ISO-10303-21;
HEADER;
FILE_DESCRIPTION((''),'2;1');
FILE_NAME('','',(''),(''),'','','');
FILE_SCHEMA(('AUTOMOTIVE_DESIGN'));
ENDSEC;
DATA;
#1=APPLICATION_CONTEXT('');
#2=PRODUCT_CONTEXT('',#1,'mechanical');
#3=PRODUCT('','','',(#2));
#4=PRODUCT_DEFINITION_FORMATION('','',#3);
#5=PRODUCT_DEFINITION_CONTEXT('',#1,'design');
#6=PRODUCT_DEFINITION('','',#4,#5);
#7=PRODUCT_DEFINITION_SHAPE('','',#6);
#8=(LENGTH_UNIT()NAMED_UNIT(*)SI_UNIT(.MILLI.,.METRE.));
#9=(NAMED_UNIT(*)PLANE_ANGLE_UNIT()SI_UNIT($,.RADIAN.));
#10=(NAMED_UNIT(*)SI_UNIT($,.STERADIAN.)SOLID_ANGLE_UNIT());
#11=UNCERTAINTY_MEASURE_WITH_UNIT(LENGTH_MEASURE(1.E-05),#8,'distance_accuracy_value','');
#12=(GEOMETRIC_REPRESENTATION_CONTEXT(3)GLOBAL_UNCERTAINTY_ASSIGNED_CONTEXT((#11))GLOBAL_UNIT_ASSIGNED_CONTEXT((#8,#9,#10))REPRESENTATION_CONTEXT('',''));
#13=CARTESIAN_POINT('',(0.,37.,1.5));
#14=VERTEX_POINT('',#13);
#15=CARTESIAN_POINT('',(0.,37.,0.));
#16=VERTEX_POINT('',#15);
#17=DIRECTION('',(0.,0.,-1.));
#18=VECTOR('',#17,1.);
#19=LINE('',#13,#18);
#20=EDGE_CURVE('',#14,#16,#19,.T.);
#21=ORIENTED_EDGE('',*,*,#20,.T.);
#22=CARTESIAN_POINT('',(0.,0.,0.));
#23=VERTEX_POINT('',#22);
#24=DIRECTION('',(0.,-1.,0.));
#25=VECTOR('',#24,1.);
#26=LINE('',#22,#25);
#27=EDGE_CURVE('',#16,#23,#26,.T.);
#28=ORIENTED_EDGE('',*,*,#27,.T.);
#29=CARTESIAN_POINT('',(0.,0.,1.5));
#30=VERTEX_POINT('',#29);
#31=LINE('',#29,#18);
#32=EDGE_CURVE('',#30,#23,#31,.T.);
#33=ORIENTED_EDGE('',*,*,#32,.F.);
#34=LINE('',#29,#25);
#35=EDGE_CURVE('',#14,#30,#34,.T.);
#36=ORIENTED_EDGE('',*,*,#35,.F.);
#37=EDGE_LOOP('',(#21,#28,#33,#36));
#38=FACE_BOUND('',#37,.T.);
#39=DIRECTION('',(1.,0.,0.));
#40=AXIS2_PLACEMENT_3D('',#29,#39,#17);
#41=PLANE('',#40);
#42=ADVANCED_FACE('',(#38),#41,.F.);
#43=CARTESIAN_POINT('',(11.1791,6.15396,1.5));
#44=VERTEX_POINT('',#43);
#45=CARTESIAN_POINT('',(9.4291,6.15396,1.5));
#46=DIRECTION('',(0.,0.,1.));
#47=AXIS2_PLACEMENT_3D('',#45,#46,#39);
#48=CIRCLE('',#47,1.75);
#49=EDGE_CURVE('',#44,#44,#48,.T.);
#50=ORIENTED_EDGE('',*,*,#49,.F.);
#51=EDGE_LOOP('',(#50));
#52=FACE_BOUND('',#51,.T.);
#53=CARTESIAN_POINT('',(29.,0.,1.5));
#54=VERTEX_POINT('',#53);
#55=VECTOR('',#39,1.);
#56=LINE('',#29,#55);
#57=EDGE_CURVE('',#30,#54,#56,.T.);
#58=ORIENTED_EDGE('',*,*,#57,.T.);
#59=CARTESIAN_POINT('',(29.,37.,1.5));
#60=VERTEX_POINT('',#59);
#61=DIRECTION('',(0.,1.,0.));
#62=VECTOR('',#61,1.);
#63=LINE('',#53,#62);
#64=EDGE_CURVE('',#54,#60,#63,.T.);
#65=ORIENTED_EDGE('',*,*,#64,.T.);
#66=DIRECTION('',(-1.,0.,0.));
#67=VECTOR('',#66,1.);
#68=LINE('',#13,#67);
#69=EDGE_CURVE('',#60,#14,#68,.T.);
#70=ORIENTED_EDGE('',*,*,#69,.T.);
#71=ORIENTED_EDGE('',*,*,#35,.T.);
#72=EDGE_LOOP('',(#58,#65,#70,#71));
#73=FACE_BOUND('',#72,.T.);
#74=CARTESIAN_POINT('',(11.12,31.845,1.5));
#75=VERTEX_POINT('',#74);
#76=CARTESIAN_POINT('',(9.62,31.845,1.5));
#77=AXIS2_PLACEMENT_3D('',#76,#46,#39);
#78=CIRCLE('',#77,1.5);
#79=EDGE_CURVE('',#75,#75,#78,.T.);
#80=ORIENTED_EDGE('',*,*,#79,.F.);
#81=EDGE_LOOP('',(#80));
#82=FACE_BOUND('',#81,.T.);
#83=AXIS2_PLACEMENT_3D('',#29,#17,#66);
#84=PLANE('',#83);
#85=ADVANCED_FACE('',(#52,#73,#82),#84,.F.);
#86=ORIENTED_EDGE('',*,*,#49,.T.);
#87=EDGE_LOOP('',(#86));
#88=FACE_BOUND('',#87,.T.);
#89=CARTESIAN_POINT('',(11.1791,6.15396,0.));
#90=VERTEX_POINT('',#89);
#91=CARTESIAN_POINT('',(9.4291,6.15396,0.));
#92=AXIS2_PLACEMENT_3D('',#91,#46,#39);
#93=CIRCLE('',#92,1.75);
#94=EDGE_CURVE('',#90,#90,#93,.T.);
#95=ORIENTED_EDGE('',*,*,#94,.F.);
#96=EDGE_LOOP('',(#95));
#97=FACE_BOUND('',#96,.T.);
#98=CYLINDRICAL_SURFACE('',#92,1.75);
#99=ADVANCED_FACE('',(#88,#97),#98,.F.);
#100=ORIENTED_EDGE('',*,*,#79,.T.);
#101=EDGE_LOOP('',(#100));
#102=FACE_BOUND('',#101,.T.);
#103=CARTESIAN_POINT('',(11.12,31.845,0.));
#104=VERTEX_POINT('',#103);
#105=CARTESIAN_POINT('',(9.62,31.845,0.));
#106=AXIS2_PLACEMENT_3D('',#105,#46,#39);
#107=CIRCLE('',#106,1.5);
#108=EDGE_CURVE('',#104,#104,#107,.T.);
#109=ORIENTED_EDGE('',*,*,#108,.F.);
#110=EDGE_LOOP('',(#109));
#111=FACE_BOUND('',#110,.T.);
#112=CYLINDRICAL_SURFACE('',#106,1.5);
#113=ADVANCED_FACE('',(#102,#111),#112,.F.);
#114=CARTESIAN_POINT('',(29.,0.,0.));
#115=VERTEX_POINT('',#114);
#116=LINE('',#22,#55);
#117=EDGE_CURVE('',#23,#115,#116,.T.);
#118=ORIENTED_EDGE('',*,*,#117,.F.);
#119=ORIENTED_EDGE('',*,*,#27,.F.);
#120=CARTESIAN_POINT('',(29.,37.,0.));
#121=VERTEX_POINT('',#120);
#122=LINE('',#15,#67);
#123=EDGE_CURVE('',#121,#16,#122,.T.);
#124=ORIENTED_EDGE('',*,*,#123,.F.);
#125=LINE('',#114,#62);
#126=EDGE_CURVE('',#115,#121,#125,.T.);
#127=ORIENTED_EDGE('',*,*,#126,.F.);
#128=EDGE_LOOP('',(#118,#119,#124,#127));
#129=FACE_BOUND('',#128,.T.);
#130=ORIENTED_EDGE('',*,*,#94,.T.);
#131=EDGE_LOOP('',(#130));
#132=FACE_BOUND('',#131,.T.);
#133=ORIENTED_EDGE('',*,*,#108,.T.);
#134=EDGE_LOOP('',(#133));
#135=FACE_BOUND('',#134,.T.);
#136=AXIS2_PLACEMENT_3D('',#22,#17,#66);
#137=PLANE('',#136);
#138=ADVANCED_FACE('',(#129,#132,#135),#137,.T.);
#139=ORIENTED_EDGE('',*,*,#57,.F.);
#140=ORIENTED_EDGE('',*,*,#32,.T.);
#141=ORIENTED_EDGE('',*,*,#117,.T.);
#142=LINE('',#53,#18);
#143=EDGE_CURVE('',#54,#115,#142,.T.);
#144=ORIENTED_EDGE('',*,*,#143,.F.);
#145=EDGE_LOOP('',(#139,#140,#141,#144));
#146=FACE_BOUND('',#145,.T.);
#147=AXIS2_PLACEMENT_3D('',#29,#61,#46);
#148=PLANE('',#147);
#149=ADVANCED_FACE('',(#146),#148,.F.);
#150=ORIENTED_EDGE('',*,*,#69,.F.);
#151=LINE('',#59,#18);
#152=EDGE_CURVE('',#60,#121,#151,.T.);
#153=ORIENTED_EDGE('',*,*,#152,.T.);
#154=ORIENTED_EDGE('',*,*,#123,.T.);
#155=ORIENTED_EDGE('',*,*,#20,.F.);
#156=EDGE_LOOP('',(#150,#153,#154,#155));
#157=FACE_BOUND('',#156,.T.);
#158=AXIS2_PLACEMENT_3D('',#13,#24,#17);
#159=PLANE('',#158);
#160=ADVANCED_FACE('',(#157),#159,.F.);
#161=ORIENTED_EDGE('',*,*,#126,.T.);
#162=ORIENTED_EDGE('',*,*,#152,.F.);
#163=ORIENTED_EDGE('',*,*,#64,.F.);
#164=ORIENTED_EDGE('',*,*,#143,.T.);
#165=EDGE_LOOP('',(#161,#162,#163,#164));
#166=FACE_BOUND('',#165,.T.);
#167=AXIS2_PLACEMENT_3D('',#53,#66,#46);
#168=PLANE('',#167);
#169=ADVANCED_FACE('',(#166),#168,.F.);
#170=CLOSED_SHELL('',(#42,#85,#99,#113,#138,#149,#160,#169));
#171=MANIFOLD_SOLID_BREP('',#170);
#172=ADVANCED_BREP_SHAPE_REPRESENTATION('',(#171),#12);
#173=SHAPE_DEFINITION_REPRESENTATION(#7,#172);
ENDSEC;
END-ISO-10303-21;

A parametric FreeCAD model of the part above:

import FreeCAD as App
import Part
import Sketcher

doc = App.newDocument("Part")
body = doc.addObject("PartDesign::Body", "Body")

sketch1 = body.newObject("Sketcher::SketchObject", "Sketch")
sketch1.AttachmentSupport = (doc.getObject("XY_Plane"), [""])
sketch1.MapMode = "FlatFace"
sketch1.addGeometry(Part.LineSegment(App.Vector(0, 37, 0), App.Vector(0, 0, 0)), False)
sketch1.addGeometry(Part.LineSegment(App.Vector(0, 0, 0), App.Vector(29, 0, 0)), False)
sketch1.addGeometry(Part.LineSegment(App.Vector(29, 0, 0), App.Vector(29, 37, 0)), False)
sketch1.addGeometry(Part.LineSegment(App.Vector(29, 37, 0), App.Vector(0, 37, 0)), False)
sketch1.addConstraint(Sketcher.Constraint("Coincident", 0, 2, 1, 1))
sketch1.addConstraint(Sketcher.Constraint("Coincident", 1, 2, 2, 1))
sketch1.addConstraint(Sketcher.Constraint("Coincident", 2, 2, 3, 1))
sketch1.addConstraint(Sketcher.Constraint("Coincident", 3, 2, 0, 1))
sketch1.addConstraint(Sketcher.Constraint("Vertical", 0))
sketch1.addConstraint(Sketcher.Constraint("Horizontal", 1))
sketch1.addConstraint(Sketcher.Constraint("Vertical", 2))
sketch1.addConstraint(Sketcher.Constraint("Horizontal", 3))
sketch1.addConstraint(Sketcher.Constraint("Coincident", 0, 2, -1, 1))
sketch1.addConstraint(Sketcher.Constraint("DistanceX", 1, 1, 1, 2, 29.0))
sketch1.addConstraint(Sketcher.Constraint("DistanceY", 0, 2, 0, 1, 37.0))
pad1 = body.newObject("PartDesign::Pad", "Pad")
pad1.Profile = sketch1
pad1.Length = 1.5

sketch2 = body.newObject("Sketcher::SketchObject", "Sketch001")
sketch2.AttachmentSupport = (doc.getObject("XY_Plane"), [""])
sketch2.MapMode = "FlatFace"
sketch2.AttachmentOffset = App.Placement(App.Vector(0, 0, 1.5), App.Rotation())
sketch2.addGeometry(Part.Circle(App.Vector(9.62, 31.845, 0), App.Vector(0, 0, 1), 1.5), False)
sketch2.addGeometry(Part.Circle(App.Vector(9.4291, 6.15396, 0), App.Vector(0, 0, 1), 1.75), False)
sketch2.addConstraint(Sketcher.Constraint("Diameter", 0, 3.0))
sketch2.addConstraint(Sketcher.Constraint("Diameter", 1, 3.5))
sketch2.addConstraint(Sketcher.Constraint("DistanceX", -1, 1, 0, 3, 9.62))
sketch2.addConstraint(Sketcher.Constraint("DistanceY", -1, 1, 0, 3, 31.845))
sketch2.addConstraint(Sketcher.Constraint("DistanceX", -1, 1, 1, 3, 9.4291))
sketch2.addConstraint(Sketcher.Constraint("DistanceY", -1, 1, 1, 3, 6.15396))
pocket1 = body.newObject("PartDesign::Pocket", "Pocket")
pocket1.Profile = sketch2
pocket1.Type = "ThroughAll"

doc.recompute()
